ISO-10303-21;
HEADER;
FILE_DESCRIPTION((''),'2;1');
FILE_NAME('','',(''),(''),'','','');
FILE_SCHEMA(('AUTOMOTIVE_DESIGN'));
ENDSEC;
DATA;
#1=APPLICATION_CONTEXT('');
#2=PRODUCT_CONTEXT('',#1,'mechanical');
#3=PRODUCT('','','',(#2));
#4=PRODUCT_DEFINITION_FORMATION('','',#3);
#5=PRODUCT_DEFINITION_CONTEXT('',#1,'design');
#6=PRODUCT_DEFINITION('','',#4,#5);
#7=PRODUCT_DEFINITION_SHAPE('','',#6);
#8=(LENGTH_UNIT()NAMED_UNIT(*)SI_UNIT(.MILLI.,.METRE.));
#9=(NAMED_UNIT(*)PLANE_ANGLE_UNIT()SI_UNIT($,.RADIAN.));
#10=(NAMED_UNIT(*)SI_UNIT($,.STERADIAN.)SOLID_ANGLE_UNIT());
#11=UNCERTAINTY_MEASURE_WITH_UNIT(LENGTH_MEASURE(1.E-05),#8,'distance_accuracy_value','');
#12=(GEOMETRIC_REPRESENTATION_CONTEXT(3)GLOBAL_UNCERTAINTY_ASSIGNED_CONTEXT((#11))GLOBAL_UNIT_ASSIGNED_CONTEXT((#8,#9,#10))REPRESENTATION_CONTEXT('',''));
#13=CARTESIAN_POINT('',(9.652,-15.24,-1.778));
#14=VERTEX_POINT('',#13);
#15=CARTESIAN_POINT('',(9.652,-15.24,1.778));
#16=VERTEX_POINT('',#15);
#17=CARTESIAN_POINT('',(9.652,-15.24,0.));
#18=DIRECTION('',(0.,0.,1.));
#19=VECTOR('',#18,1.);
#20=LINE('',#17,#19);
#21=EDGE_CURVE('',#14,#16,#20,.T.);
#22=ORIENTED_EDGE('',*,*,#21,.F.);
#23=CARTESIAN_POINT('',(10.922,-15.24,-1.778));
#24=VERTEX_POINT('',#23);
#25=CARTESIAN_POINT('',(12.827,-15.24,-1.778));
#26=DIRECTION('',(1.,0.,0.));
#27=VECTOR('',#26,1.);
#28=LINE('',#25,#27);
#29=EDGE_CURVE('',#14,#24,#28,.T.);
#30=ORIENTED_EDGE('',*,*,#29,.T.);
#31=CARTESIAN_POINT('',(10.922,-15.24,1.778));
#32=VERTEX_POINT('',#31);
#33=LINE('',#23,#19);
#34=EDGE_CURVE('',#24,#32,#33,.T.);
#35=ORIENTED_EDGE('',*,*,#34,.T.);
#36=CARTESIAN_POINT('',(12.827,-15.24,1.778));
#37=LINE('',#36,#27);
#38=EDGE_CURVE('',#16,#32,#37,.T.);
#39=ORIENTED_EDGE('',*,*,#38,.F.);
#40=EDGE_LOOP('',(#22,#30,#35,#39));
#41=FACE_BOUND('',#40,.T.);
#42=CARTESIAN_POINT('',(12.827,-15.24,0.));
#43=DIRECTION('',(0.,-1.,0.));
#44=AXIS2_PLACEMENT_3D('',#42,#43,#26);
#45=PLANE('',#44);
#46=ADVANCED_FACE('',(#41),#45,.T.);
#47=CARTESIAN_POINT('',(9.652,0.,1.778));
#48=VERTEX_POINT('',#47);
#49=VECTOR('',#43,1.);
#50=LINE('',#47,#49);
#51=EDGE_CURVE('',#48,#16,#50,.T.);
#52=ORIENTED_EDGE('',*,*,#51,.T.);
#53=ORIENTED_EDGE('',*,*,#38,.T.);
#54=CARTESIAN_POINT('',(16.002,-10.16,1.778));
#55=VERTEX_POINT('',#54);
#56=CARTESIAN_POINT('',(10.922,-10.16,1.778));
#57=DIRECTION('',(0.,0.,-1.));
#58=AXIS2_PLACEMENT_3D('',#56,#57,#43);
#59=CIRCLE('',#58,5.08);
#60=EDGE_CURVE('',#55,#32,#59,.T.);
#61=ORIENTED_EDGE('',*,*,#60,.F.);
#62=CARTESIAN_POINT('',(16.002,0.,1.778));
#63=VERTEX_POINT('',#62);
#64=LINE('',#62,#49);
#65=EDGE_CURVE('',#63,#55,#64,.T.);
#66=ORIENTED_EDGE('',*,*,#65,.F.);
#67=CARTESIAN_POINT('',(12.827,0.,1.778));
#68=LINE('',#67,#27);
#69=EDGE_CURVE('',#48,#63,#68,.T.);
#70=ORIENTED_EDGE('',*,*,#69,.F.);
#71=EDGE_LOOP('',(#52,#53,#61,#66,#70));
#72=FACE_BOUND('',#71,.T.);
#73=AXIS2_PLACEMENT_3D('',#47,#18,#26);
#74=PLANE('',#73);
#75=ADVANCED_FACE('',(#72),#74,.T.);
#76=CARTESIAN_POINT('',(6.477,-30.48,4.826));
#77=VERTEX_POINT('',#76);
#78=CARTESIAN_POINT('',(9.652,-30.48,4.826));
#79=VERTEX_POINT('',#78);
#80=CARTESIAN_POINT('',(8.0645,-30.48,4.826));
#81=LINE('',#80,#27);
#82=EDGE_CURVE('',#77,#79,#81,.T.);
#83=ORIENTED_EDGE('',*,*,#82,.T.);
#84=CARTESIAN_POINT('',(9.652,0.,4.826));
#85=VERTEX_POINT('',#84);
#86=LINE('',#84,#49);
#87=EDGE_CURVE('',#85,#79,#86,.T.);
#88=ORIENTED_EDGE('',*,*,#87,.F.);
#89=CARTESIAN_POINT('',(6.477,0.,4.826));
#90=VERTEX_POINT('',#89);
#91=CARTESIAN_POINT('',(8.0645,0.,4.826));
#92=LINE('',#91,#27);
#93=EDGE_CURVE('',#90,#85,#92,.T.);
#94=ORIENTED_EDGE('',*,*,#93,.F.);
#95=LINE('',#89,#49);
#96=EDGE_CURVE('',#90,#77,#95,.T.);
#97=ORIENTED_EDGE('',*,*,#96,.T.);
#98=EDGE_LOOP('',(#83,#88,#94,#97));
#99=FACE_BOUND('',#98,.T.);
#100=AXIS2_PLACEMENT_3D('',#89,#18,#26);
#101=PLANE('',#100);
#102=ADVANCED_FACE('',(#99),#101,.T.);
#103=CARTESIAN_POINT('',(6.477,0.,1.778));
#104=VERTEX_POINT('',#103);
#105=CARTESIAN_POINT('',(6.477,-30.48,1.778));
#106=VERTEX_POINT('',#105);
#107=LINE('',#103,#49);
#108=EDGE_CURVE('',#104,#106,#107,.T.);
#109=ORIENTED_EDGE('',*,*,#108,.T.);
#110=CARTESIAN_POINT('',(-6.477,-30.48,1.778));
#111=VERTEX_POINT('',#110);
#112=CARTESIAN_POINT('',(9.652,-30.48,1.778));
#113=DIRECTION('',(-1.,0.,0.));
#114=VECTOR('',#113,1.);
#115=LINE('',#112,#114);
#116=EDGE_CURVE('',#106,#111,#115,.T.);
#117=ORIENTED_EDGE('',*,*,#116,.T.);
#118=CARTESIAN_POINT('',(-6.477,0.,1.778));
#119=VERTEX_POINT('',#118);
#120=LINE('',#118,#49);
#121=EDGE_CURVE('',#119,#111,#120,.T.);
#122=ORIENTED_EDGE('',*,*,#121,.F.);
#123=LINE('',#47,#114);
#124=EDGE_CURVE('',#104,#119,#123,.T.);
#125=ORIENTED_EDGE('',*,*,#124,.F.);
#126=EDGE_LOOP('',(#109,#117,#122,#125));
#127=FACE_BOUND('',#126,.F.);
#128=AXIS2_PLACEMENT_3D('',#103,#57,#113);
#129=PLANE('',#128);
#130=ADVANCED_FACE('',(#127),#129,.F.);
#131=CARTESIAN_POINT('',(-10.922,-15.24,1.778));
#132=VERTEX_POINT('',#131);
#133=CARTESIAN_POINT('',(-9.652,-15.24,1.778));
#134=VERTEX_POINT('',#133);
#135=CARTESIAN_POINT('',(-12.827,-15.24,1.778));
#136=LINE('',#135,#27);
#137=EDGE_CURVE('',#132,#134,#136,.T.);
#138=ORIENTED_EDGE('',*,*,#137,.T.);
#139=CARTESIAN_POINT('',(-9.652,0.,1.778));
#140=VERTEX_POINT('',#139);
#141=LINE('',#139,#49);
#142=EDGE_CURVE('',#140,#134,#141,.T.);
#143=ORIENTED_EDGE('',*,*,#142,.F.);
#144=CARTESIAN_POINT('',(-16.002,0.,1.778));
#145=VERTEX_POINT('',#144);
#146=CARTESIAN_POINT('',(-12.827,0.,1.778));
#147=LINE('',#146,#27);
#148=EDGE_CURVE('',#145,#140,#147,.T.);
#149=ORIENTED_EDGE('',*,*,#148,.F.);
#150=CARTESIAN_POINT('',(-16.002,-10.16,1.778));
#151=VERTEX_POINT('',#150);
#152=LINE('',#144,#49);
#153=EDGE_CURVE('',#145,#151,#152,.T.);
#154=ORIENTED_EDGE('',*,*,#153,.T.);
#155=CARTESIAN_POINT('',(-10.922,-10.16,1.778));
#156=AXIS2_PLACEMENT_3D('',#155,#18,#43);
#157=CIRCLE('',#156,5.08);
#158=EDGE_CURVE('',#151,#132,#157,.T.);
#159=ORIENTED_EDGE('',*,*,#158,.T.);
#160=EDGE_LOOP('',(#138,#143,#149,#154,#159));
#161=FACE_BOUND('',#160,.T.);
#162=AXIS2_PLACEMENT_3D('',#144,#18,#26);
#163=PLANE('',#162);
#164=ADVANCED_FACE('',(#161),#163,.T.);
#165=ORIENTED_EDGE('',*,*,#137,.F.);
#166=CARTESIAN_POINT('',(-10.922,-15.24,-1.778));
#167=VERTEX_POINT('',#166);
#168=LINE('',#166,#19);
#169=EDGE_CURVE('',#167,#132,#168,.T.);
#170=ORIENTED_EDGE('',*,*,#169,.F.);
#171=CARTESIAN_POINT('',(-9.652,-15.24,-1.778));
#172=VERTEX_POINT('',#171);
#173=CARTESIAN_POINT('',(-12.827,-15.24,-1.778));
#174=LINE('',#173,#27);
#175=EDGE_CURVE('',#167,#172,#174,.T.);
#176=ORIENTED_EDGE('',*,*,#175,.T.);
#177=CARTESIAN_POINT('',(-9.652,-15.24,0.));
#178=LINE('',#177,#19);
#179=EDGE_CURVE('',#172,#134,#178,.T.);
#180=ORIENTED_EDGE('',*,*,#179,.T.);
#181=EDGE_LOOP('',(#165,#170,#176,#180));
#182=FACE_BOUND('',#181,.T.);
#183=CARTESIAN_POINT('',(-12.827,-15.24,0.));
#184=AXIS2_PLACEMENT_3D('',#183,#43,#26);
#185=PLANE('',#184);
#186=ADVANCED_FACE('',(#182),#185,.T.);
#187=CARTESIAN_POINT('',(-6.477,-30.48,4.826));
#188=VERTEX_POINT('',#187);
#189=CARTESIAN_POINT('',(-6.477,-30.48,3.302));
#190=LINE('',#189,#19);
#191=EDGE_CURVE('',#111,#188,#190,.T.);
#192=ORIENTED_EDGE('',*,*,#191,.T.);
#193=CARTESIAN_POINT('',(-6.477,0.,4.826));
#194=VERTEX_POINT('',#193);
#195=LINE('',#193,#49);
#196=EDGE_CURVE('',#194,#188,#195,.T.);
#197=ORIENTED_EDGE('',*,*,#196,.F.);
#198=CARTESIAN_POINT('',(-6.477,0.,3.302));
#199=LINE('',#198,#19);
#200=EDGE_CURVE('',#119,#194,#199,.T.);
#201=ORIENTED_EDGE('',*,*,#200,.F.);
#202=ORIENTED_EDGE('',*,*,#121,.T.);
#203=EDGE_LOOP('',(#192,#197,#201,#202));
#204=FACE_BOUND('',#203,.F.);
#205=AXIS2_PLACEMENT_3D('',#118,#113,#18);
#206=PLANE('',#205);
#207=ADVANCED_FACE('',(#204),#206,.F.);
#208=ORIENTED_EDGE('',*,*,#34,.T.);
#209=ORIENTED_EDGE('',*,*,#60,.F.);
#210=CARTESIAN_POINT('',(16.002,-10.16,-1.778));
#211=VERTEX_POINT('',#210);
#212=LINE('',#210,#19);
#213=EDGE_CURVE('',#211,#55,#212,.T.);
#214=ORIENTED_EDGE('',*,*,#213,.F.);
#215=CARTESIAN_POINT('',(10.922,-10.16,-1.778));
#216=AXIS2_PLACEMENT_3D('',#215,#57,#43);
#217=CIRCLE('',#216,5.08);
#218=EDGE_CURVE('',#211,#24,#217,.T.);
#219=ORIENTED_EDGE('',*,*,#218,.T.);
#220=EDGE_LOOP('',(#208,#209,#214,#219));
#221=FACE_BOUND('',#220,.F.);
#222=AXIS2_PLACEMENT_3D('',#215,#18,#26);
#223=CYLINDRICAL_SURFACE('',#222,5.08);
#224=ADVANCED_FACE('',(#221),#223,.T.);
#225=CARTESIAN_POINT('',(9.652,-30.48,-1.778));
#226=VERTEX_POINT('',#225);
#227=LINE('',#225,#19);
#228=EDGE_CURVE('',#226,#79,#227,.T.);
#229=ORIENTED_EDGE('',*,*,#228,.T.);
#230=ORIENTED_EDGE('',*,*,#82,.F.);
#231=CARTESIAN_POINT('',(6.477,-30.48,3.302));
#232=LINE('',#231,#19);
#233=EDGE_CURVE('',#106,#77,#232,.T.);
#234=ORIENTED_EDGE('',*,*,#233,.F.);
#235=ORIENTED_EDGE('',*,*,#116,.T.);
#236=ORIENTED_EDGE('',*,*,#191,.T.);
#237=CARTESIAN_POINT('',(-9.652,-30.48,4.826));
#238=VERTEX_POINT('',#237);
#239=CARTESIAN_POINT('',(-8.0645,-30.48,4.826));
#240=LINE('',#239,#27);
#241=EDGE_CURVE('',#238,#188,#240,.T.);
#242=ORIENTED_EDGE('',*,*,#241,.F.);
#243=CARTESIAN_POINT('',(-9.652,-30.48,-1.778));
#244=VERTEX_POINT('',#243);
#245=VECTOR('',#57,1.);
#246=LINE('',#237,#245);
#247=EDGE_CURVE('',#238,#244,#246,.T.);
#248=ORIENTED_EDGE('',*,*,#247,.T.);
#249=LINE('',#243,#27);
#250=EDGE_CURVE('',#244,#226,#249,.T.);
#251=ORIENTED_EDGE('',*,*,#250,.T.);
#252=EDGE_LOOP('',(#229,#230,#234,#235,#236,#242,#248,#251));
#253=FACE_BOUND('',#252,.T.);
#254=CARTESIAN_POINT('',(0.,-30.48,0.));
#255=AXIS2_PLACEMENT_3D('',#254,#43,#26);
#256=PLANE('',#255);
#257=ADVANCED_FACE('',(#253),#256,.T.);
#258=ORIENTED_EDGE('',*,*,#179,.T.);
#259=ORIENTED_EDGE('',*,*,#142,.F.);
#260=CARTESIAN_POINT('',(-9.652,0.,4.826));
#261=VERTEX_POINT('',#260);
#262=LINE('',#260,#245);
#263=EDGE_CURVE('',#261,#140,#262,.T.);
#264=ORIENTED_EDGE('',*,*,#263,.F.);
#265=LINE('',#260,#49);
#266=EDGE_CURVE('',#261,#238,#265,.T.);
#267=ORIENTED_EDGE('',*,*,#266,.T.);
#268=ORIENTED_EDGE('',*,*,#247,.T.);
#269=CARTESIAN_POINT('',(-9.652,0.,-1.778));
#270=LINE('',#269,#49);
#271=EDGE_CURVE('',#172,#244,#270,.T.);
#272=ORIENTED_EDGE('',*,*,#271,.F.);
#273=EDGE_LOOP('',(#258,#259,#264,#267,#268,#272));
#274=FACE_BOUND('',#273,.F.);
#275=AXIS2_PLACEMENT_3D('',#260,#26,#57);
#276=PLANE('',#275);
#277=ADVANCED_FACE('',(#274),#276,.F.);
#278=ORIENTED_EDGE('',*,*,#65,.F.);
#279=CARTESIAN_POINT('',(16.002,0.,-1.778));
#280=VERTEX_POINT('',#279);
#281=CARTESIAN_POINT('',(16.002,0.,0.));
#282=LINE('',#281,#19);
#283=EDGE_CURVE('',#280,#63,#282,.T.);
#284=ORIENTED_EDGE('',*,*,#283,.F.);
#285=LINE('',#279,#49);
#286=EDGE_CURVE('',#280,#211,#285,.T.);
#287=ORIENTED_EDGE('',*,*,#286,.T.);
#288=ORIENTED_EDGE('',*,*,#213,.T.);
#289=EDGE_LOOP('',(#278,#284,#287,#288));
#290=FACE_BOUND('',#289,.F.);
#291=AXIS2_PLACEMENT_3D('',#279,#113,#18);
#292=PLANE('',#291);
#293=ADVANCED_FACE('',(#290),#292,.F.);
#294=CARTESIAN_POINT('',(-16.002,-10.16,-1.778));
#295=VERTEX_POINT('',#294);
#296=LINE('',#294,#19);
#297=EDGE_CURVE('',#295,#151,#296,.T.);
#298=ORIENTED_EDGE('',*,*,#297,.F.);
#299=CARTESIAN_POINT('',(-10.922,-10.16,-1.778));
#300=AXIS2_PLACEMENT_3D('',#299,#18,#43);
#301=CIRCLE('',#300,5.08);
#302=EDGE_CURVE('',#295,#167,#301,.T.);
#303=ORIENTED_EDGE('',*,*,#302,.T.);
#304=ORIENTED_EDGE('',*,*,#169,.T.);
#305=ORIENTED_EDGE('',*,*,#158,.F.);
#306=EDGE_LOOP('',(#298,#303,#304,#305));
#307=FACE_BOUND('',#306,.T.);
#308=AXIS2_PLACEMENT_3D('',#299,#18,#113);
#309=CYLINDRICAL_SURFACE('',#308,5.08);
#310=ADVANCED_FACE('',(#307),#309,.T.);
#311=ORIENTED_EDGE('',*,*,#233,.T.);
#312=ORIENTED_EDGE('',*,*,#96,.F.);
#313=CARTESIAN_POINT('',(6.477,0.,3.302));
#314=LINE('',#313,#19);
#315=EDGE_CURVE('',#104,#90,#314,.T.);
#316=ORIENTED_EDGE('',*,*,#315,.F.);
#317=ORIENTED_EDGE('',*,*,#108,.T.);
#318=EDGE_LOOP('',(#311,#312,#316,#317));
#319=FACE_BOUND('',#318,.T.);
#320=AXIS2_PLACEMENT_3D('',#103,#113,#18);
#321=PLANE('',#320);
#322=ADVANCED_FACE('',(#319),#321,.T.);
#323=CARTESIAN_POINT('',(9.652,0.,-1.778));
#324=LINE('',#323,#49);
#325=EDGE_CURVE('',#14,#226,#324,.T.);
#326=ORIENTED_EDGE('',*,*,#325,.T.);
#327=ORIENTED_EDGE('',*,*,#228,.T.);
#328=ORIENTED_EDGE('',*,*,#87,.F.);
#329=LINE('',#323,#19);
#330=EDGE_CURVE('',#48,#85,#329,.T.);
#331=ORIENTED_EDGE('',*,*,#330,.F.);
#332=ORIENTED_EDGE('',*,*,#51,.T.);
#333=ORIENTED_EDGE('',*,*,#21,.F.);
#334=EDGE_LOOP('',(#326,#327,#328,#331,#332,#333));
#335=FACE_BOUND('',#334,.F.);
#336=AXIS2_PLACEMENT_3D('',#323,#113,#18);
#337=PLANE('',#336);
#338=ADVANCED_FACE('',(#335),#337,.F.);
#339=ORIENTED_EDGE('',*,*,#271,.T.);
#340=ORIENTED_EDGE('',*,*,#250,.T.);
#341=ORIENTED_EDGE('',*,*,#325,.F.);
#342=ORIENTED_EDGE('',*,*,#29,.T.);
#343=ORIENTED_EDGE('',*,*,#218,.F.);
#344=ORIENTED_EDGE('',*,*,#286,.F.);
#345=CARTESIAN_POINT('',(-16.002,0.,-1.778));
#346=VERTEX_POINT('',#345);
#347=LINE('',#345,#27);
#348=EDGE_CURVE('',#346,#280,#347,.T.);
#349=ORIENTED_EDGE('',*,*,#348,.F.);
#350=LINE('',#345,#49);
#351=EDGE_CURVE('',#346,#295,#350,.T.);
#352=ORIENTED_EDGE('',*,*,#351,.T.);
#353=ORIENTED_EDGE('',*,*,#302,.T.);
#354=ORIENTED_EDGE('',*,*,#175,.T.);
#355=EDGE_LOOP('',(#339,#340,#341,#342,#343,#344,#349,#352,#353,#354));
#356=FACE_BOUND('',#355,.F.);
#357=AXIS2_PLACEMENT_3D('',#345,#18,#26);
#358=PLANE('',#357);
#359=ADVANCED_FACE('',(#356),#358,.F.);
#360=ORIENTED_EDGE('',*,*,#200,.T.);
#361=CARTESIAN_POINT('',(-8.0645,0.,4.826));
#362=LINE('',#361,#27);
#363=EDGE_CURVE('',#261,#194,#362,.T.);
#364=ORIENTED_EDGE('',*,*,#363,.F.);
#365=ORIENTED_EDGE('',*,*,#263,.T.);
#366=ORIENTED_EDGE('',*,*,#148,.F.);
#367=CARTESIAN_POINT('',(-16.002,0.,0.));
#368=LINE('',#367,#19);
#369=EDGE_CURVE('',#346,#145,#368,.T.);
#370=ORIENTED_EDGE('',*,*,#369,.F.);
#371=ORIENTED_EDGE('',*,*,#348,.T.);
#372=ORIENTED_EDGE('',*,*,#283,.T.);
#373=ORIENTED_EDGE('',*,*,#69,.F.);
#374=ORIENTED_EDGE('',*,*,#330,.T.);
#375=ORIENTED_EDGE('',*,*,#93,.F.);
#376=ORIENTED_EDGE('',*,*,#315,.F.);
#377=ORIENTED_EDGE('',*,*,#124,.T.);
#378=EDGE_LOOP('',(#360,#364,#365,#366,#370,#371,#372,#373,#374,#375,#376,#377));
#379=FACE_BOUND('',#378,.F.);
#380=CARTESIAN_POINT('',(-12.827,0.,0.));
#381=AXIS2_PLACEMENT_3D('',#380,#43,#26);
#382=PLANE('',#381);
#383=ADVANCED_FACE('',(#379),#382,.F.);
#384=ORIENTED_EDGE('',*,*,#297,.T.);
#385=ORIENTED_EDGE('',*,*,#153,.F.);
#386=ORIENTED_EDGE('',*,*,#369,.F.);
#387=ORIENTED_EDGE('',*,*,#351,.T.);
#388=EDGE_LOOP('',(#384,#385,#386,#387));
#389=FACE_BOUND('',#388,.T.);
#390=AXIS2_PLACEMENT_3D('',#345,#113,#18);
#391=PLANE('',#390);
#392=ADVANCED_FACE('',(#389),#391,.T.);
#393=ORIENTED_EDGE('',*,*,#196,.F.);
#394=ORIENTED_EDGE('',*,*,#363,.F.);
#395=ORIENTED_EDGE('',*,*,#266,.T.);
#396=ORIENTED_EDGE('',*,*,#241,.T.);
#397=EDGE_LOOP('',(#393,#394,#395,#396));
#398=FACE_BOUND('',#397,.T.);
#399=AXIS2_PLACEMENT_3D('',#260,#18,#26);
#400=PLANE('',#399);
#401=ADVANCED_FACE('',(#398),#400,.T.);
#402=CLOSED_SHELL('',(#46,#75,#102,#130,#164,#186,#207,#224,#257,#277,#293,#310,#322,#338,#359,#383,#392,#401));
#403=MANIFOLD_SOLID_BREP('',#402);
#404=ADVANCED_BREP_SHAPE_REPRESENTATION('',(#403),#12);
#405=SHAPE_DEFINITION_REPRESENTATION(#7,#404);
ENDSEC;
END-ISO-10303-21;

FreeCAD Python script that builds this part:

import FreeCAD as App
import Part
import Sketcher
from FreeCAD import Vector
Q = App.Units.Quantity


def edges_at(feature, points):
    """Names of the edges that pass closest to the given points."""
    edges = feature.Shape.Edges
    near = lambda p: min(range(len(edges)), key=lambda i: edges[i].distToShape(Part.Vertex(*p))[0])
    return sorted({f"Edge{near(p) + 1}" for p in points})


def add_polygon(sketch, points):
    """Adds a closed chain of lines whose ends are joined by coincident constraints."""
    first, n = sketch.GeometryCount, len(points)
    for a, b in zip(points, points[1:] + points[:1]):
        sketch.addGeometry(Part.LineSegment(App.Vector(*a, 0), App.Vector(*b, 0)), False)
    for i in range(n):
        sketch.addConstraint(Sketcher.Constraint("Coincident", first + i, 2, first + (i + 1) % n, 1))

doc = App.newDocument("Part")
params = doc.addObject("Spreadsheet::Sheet", "Params")
for row, (alias, value) in enumerate([
    ("sketch1_width", "0.51 in"),
    ("sketch1_width2", "0.76 in"),
    ("sketch1_height", "0.26 in"),
    ("sketch1_height2", "0.12 in"),
    ("pad1_length", "1.2 in"),
    ("sketch2_width", "0.25 in"),
    ("sketch2_height", "0.14 in"),
    ("pad2_length", "0.6 in"),
    ("sketch3_width", "0.25 in"),
    ("sketch3_height", "0.14 in"),
    ("pad3_length", "0.6 in"),
    ("fillet_radius", "0.2 in"),
], start=1):
    params.set(f"A{row}", alias)
    params.set(f"B{row}", "=" + value)
    params.setAlias(f"B{row}", alias)

body = doc.addObject("PartDesign::Body", "Body")

# Sketch on XZ plane
sketch1 = body.newObject("Sketcher::SketchObject", "Sketch")
sketch1.AttachmentSupport = (doc.getObject("XZ_Plane"), [""])
sketch1.MapMode = "FlatFace"
add_polygon(sketch1, [(9.652, -1.778), (9.652, 4.826), (6.477, 4.826), (6.477, 1.778), (-6.477, 1.778), (-6.477, 4.826), (-9.652, 4.826), (-9.652, -1.778)])  # lines 0-7
sketch1.addConstraint([
    Sketcher.Constraint("Vertical", 0),
    Sketcher.Constraint("Horizontal", 1),
    Sketcher.Constraint("Vertical", 2),
    Sketcher.Constraint("Horizontal", 3),
    Sketcher.Constraint("Vertical", 4),
    Sketcher.Constraint("Horizontal", 5),
    Sketcher.Constraint("Vertical", 6),
    Sketcher.Constraint("Horizontal", 7),
    Sketcher.Constraint("Symmetric", 1, 2, 4, 2, -2),
    Sketcher.Constraint("Equal", 1, 5),
    Sketcher.Constraint("DistanceX", 3, 2, 3, 1, Q("0.51 in")),
    Sketcher.Constraint("DistanceX", 7, 1, 7, 2, Q("0.76 in")),
    Sketcher.Constraint("DistanceY", 0, 1, 0, 2, Q("0.26 in")),
    Sketcher.Constraint("DistanceY", 2, 2, 2, 1, Q("0.12 in")),
    Sketcher.Constraint("DistanceY", -1, 1, 0, 2, Q("0.19 in")),
])
sketch1.setExpression("Constraints[18]", "Params.sketch1_width")
sketch1.setExpression("Constraints[19]", "Params.sketch1_width2")
sketch1.setExpression("Constraints[20]", "Params.sketch1_height")
sketch1.setExpression("Constraints[21]", "Params.sketch1_height2")
pad1 = body.newObject("PartDesign::Pad", "Pad")
pad1.Profile = sketch1
pad1.setExpression("Length", "Params.pad1_length")

# Sketch on XZ plane
sketch2 = body.newObject("Sketcher::SketchObject", "Sketch001")
sketch2.AttachmentSupport = (doc.getObject("XZ_Plane"), [""])
sketch2.MapMode = "FlatFace"
add_polygon(sketch2, [(9.652, 1.778), (9.652, -1.778), (16.002, -1.778), (16.002, 1.778)])  # lines 0-3
sketch2.addConstraint([
    Sketcher.Constraint("Vertical", 0),
    Sketcher.Constraint("Horizontal", 1),
    Sketcher.Constraint("Vertical", 2),
    Sketcher.Constraint("Horizontal", 3),
    Sketcher.Constraint("DistanceX", 1, 1, 1, 2, Q("0.25 in")),
    Sketcher.Constraint("DistanceY", 0, 2, 0, 1, Q("0.14 in")),
    Sketcher.Constraint("DistanceX", -1, 1, 0, 2, Q("0.38 in")),
    Sketcher.Constraint("DistanceY", 0, 2, -1, 1, Q("0.07 in")),
])
sketch2.setExpression("Constraints[8]", "Params.sketch2_width")
sketch2.setExpression("Constraints[9]", "Params.sketch2_height")
pad2 = body.newObject("PartDesign::Pad", "Pad001")
pad2.Profile = sketch2
pad2.setExpression("Length", "Params.pad2_length")

# Sketch on XZ plane
sketch3 = body.newObject("Sketcher::SketchObject", "Sketch002")
sketch3.AttachmentSupport = (doc.getObject("XZ_Plane"), [""])
sketch3.MapMode = "FlatFace"
add_polygon(sketch3, [(-16.002, 1.778), (-16.002, -1.778), (-9.652, -1.778), (-9.652, 1.778)])  # lines 0-3
sketch3.addConstraint([
    Sketcher.Constraint("Vertical", 0),
    Sketcher.Constraint("Horizontal", 1),
    Sketcher.Constraint("Vertical", 2),
    Sketcher.Constraint("Horizontal", 3),
    Sketcher.Constraint("DistanceX", 1, 1, 1, 2, Q("0.25 in")),
    Sketcher.Constraint("DistanceY", 0, 2, 0, 1, Q("0.14 in")),
    Sketcher.Constraint("DistanceX", 0, 2, -1, 1, Q("0.63 in")),
    Sketcher.Constraint("DistanceY", 0, 2, -1, 1, Q("0.07 in")),
])
sketch3.setExpression("Constraints[8]", "Params.sketch3_width")
sketch3.setExpression("Constraints[9]", "Params.sketch3_height")
pad3 = body.newObject("PartDesign::Pad", "Pad002")
pad3.Profile = sketch3
pad3.setExpression("Length", "Params.pad3_length")
doc.recompute()

fillet = body.newObject("PartDesign::Fillet", "Fillet")
fillet.Base = (pad3, edges_at(pad3, [(-16.002, -15.24, 0), (16.002, -15.24, 0)]))
fillet.setExpression("Radius", "Params.fillet_radius")

doc.recompute()
